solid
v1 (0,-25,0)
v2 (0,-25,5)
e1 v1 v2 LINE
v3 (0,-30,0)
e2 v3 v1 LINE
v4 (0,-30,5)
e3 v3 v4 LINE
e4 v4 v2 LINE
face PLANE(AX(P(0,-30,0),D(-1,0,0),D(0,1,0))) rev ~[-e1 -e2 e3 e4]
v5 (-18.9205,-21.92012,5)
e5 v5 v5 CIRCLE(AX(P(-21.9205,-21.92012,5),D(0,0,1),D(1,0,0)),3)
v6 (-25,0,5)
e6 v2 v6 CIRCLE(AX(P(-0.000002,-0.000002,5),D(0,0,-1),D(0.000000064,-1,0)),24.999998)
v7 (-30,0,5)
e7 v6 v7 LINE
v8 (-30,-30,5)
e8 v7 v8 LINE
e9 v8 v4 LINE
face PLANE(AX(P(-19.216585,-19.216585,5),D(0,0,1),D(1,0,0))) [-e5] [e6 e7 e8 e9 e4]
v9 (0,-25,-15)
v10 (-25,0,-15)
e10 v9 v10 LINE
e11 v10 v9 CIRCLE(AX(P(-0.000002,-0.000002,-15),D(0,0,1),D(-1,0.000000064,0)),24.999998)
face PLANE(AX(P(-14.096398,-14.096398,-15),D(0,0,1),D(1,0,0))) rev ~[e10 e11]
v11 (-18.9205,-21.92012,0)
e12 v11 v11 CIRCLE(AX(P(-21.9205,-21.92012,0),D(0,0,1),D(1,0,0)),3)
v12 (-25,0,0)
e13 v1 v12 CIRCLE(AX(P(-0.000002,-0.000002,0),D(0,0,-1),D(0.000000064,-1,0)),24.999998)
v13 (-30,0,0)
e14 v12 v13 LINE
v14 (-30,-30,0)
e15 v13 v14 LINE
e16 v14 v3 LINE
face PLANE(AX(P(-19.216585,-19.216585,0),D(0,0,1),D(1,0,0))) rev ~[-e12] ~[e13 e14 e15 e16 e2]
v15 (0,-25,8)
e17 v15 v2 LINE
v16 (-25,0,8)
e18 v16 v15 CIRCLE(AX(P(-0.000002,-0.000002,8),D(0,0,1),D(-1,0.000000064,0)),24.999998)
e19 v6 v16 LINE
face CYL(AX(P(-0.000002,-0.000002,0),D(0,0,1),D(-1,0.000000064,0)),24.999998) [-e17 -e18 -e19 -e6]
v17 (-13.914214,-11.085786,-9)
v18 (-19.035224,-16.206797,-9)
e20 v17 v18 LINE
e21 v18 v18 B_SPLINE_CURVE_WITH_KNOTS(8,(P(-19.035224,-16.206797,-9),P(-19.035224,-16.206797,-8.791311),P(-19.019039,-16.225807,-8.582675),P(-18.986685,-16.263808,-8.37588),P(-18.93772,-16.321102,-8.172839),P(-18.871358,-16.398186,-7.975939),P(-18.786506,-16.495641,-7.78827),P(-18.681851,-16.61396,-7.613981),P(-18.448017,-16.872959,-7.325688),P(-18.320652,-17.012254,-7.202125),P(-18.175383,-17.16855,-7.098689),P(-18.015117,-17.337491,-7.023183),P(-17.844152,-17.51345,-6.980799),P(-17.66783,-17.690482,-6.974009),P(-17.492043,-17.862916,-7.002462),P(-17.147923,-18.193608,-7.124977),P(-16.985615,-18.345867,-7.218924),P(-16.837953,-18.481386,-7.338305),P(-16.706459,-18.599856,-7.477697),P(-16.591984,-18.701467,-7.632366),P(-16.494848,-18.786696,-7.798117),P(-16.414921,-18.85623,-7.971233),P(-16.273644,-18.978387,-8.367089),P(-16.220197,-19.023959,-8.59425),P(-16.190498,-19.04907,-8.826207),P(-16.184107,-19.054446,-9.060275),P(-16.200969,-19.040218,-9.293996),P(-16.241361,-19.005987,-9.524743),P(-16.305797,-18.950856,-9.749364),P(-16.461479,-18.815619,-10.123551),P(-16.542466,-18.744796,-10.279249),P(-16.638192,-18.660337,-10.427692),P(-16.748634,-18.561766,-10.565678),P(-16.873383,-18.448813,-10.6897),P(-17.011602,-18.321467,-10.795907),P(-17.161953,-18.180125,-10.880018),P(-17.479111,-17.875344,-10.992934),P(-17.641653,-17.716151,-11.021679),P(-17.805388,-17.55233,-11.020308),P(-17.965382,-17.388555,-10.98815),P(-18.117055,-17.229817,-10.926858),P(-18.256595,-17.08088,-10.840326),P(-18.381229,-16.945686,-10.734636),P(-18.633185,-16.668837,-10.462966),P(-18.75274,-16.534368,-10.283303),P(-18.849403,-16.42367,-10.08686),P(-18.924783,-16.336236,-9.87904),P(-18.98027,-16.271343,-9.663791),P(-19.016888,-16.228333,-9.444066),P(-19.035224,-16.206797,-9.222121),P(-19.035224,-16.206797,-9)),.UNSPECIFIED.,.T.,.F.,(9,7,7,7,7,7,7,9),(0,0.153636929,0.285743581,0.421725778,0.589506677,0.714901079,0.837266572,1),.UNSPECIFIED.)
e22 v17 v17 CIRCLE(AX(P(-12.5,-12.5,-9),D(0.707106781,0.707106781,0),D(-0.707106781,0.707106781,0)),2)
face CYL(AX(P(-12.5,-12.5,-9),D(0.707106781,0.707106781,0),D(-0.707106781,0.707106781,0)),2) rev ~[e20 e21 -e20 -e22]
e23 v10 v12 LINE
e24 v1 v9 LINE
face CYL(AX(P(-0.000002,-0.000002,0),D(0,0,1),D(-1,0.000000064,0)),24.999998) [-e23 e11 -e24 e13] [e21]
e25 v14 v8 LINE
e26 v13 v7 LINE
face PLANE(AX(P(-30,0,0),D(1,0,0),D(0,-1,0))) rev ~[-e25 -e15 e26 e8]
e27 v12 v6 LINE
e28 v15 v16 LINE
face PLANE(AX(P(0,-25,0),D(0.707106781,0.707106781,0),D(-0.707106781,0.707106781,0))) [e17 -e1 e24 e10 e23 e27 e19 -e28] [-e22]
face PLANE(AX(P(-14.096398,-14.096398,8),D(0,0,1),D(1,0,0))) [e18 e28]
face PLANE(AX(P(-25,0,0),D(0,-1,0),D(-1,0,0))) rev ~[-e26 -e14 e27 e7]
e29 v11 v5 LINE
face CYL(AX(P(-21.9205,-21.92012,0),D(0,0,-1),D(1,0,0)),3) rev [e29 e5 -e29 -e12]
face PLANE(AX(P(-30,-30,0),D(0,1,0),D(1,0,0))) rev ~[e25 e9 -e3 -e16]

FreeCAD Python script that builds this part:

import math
import FreeCAD as App
import Part
import Sketcher

doc = App.newDocument("Part")
body = doc.addObject("PartDesign::Body", "Body")

sketch1 = body.newObject("Sketcher::SketchObject", "Sketch")
sketch1.AttachmentSupport = (doc.getObject("XY_Plane"), [""])
sketch1.MapMode = "FlatFace"
sketch1.addGeometry(Part.LineSegment(App.Vector(0, -25, 0), App.Vector(-25, 0, 0)), False)
sketch1.addGeometry(Part.ArcOfCircle(Part.Circle(App.Vector(0, 0, 0), App.Vector(0, 0, 1), 25), math.radians(180), math.radians(270)), False)
sketch1.addConstraint(Sketcher.Constraint("Coincident", 0, 1, 1, 2))
sketch1.addConstraint(Sketcher.Constraint("Coincident", 1, 1, 0, 2))
sketch1.addConstraint(Sketcher.Constraint("Coincident", 1, 3, -1, 1))
sketch1.addConstraint(Sketcher.Constraint("PointOnObject", 0, 1, -2))
sketch1.addConstraint(Sketcher.Constraint("PointOnObject", 1, 1, -1))
sketch1.addConstraint(Sketcher.Constraint("Radius", 1, 24.999998))
pad1 = body.newObject("PartDesign::Pad", "Pad")
pad1.Profile = sketch1
pad1.Type = "TwoLengths"
pad1.Length = 8
pad1.Length2 = 15

sketch2 = body.newObject("Sketcher::SketchObject", "Sketch001")
sketch2.AttachmentSupport = (doc.getObject("XY_Plane"), [""])
sketch2.MapMode = "FlatFace"
sketch2.addGeometry(Part.LineSegment(App.Vector(-25, 0, 0), App.Vector(-30, 0, 0)), False)
sketch2.addGeometry(Part.LineSegment(App.Vector(-30, 0, 0), App.Vector(-30, -30, 0)), False)
sketch2.addGeometry(Part.LineSegment(App.Vector(-30, -30, 0), App.Vector(0, -30, 0)), False)
sketch2.addGeometry(Part.LineSegment(App.Vector(0, -30, 0), App.Vector(0, -25, 0)), False)
sketch2.addGeometry(Part.ArcOfCircle(Part.Circle(App.Vector(0, 0, 0), App.Vector(0, 0, 1), 25), math.radians(180), math.radians(270)), False)
sketch2.addGeometry(Part.Circle(App.Vector(-21.9, -21.9, 0), App.Vector(0, 0, 1), 3), False)
sketch2.addConstraint(Sketcher.Constraint("Coincident", 0, 2, 1, 1))
sketch2.addConstraint(Sketcher.Constraint("Coincident", 1, 2, 2, 1))
sketch2.addConstraint(Sketcher.Constraint("Coincident", 2, 2, 3, 1))
sketch2.addConstraint(Sketcher.Constraint("Coincident", 3, 2, 4, 2))
sketch2.addConstraint(Sketcher.Constraint("Coincident", 4, 1, 0, 1))
sketch2.addConstraint(Sketcher.Constraint("Horizontal", 0))
sketch2.addConstraint(Sketcher.Constraint("Vertical", 1))
sketch2.addConstraint(Sketcher.Constraint("Horizontal", 2))
sketch2.addConstraint(Sketcher.Constraint("Vertical", 3))
sketch2.addConstraint(Sketcher.Constraint("Coincident", 4, 3, -1, 1))
sketch2.addConstraint(Sketcher.Constraint("PointOnObject", 0, 2, -1))
sketch2.addConstraint(Sketcher.Constraint("PointOnObject", 2, 2, -2))
sketch2.addConstraint(Sketcher.Constraint("Equal", 2, 1))
sketch2.addConstraint(Sketcher.Constraint("Diameter", 5, 6.0))
sketch2.addConstraint(Sketcher.Constraint("Radius", 4, 24.999998))
sketch2.addConstraint(Sketcher.Constraint("DistanceX", 0, 2, 0, 1, 5.0))
sketch2.addConstraint(Sketcher.Constraint("DistanceX", 5, 3, -1, 1, 21.9205))
sketch2.addConstraint(Sketcher.Constraint("DistanceY", 5, 3, -1, 1, 21.92012))
pad2 = body.newObject("PartDesign::Pad", "Pad001")
pad2.Profile = sketch2
pad2.Length = 5

sketch3 = body.newObject("Sketcher::SketchObject", "Sketch002")
sketch3.Placement = App.Placement(App.Vector(-12.5, -12.5, 0), App.Rotation(App.Vector(-0.707106781, 0.707106781, 0), App.Vector(0, 0, 0.999999999), App.Vector(0.707106781, 0.707106781, 0), "ZXY"))
sketch3.addGeometry(Part.Circle(App.Vector(0, -9, 0), App.Vector(0, 0, 1), 2), False)
sketch3.addConstraint(Sketcher.Constraint("PointOnObject", 0, 3, -2))
sketch3.addConstraint(Sketcher.Constraint("Diameter", 0, 4.0))
sketch3.addConstraint(Sketcher.Constraint("DistanceY", 0, 3, -1, 1, 9.0))
pocket1 = body.newObject("PartDesign::Pocket", "Pocket")
pocket1.Profile = sketch3
pocket1.Length = 25

doc.recompute()
